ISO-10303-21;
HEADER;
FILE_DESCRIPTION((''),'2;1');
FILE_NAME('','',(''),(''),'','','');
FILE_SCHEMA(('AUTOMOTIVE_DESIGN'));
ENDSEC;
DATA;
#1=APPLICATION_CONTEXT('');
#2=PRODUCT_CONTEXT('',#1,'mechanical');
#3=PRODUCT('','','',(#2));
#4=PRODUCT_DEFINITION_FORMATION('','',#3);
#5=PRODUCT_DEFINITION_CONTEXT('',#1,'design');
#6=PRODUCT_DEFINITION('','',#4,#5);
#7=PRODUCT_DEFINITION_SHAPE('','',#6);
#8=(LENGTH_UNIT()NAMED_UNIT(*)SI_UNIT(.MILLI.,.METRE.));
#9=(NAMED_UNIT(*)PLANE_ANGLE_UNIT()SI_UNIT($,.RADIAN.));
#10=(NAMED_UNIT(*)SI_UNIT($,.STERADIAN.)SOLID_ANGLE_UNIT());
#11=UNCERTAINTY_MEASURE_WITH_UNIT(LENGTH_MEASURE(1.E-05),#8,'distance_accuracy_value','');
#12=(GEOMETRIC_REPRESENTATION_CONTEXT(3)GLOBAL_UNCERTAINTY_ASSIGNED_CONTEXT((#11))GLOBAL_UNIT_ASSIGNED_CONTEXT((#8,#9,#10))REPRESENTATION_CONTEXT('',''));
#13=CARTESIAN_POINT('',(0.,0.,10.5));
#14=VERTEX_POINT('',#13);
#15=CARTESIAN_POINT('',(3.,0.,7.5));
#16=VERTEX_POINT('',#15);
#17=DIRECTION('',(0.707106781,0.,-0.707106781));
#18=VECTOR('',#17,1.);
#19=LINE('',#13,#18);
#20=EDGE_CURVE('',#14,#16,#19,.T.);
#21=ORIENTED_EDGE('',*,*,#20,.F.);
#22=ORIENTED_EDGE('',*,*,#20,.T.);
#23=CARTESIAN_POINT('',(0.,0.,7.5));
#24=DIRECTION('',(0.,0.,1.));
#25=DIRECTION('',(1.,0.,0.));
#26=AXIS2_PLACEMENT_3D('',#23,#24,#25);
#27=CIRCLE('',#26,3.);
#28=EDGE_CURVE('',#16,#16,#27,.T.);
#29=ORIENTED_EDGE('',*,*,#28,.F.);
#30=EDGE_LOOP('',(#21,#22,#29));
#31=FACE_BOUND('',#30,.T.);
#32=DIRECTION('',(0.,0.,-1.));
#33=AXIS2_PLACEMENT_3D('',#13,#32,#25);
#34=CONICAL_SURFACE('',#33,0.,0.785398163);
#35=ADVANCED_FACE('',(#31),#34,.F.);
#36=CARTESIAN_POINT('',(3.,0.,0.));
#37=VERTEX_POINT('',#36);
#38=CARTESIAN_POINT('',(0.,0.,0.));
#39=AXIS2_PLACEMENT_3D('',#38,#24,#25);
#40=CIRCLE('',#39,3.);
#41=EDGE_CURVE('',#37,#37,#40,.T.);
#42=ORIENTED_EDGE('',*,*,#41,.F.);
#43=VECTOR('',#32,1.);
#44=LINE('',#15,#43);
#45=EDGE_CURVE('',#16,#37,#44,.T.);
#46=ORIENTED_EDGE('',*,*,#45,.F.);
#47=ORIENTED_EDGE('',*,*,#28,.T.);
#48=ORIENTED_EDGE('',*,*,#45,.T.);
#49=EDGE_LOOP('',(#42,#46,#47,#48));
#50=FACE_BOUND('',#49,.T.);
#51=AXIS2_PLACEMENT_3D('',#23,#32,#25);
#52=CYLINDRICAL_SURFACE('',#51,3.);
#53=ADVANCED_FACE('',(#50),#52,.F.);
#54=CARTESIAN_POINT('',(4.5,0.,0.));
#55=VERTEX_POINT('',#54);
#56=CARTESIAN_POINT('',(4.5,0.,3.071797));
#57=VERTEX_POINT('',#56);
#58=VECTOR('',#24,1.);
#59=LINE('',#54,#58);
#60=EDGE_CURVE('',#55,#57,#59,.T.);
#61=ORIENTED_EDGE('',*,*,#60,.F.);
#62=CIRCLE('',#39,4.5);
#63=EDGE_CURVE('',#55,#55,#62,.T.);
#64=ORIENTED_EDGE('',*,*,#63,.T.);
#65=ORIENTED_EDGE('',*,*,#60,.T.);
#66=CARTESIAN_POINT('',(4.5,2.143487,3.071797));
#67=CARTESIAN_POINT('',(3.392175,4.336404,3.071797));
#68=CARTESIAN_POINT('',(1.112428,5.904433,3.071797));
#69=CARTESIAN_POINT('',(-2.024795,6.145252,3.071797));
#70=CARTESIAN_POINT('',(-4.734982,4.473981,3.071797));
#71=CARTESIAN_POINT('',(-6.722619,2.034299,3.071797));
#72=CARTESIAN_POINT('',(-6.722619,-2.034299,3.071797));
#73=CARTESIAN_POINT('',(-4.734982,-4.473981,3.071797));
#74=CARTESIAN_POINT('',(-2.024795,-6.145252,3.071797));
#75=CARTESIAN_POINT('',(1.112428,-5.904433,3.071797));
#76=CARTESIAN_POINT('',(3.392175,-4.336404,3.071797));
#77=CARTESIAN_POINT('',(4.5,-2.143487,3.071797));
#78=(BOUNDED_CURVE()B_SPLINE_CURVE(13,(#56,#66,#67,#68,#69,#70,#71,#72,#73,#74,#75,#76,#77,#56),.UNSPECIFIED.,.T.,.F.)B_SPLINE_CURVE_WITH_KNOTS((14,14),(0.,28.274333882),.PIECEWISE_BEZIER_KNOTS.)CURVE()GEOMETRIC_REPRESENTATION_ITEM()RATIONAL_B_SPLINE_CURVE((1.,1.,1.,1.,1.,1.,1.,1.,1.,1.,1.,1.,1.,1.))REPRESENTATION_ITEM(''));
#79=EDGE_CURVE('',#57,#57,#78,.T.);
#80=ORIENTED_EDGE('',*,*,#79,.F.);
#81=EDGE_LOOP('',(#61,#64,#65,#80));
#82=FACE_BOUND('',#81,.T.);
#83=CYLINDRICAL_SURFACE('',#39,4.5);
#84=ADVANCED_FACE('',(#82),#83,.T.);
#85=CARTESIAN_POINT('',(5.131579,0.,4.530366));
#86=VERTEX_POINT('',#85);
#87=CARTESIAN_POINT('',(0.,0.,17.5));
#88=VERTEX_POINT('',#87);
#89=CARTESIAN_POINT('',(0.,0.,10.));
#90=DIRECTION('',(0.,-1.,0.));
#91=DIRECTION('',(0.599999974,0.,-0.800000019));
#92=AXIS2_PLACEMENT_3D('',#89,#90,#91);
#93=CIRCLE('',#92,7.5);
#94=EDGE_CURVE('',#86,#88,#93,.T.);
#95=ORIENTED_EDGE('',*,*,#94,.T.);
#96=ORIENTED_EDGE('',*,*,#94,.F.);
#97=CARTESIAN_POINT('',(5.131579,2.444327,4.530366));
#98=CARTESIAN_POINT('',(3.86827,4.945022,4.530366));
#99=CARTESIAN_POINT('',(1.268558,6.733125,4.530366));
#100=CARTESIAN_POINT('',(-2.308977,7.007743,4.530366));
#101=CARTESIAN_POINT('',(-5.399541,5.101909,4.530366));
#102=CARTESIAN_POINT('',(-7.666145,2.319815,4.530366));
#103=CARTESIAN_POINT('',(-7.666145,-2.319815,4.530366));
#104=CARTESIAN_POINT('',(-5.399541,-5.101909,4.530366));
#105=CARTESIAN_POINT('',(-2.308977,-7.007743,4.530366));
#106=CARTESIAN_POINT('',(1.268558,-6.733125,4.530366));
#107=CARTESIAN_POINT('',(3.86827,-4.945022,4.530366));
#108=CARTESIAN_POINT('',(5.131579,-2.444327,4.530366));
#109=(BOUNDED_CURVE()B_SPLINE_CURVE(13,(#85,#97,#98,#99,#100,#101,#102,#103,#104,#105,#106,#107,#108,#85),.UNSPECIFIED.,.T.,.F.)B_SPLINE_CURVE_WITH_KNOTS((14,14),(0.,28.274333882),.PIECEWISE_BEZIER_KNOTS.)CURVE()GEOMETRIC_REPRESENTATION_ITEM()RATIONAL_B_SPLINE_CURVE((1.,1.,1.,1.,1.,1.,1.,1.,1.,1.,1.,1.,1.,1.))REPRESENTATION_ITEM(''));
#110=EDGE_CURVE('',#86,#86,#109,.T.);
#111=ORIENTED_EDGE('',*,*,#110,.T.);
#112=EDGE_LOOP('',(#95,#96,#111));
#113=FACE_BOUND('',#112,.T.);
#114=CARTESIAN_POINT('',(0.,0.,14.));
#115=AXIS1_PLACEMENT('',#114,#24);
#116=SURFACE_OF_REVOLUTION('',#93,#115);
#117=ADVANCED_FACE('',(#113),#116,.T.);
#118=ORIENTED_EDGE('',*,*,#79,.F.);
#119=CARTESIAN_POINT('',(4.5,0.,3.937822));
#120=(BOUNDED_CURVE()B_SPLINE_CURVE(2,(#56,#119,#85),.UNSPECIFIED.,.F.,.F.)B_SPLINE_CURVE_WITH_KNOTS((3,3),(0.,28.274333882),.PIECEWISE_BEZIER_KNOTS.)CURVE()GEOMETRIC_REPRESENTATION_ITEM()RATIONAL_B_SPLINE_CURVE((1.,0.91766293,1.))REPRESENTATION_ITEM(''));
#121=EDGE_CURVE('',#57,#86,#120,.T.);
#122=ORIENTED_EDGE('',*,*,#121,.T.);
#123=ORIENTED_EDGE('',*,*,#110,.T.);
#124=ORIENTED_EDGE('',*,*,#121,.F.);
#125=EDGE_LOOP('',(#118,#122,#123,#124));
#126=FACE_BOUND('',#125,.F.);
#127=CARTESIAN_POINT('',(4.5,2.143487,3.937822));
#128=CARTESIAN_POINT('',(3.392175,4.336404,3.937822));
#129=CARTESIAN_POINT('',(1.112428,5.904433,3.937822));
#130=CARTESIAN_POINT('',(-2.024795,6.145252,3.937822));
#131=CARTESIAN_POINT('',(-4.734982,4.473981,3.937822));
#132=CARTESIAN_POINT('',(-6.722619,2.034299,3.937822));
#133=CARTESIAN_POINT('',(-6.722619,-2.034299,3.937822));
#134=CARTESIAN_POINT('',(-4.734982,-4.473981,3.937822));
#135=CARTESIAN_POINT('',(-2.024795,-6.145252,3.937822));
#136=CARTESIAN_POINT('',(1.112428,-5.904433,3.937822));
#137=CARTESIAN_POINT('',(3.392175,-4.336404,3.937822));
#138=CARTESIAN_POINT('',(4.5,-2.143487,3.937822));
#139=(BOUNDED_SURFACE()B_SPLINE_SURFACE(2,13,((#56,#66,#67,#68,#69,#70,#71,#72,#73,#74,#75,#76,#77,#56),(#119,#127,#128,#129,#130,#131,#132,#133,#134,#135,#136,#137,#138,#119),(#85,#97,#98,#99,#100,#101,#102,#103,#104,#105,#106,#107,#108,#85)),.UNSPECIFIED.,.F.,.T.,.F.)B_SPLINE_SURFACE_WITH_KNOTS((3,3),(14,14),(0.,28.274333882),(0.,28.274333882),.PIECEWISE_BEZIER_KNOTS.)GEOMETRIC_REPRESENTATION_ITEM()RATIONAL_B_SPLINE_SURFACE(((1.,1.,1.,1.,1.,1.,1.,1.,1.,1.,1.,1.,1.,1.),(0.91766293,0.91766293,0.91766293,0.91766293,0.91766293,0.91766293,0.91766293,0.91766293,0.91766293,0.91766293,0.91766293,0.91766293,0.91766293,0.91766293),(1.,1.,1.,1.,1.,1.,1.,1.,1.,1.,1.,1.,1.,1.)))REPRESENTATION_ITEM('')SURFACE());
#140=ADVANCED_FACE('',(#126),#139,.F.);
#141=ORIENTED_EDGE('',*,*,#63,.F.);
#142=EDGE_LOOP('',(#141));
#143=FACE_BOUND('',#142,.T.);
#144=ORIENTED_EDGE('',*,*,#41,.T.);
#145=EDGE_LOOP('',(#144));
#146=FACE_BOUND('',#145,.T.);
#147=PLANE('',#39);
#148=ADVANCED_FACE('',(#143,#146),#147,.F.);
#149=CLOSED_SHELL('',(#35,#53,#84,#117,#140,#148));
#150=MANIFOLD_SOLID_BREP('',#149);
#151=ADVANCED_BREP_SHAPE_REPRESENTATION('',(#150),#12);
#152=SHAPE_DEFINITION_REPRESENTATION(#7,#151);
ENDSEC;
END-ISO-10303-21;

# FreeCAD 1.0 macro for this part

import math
import FreeCAD as App
import Part
import Sketcher
from FreeCAD import Vector
Q = App.Units.Quantity


def edges_at(feature, points):
    """Names of the edges that pass closest to the given points."""
    edges = feature.Shape.Edges
    near = lambda p: min(range(len(edges)), key=lambda i: edges[i].distToShape(Part.Vertex(*p))[0])
    return sorted({f"Edge{near(p) + 1}" for p in points})

doc = App.newDocument("Part")
body = doc.addObject("PartDesign::Body", "Body")

# Sketch on XZ plane
sketch1 = doc.addObject("Sketcher::SketchObject", "Sketch")
body.addObject(sketch1)
sketch1.AttachmentSupport = (doc.XZ_Plane, [""])
sketch1.MapMode = "FlatFace"
sketch1.addGeometry(Part.LineSegment(Vector(3, 7.5, 0), Vector(3, 0, 0)), False)
sketch1.addGeometry(Part.LineSegment(Vector(3, 0, 0), Vector(4.5, 0, 0)), False)
sketch1.addGeometry(Part.LineSegment(Vector(4.5, 0, 0), Vector(4.5, 4, 0)), False)
sketch1.addGeometry(Part.ArcOfCircle(Part.Circle(Vector(0, 10, 0), Vector(0, 0, 1), 7.5), math.radians(-53), math.radians(90)), False)
sketch1.addGeometry(Part.LineSegment(Vector(0, 17.5, 0), Vector(0, 10.5, 0)), False)
sketch1.addGeometry(Part.LineSegment(Vector(0, 10.5, 0), Vector(3, 7.5, 0)), False)
sketch1.addConstraint(Sketcher.Constraint("Coincident", 0, 2, 1, 1))
sketch1.addConstraint(Sketcher.Constraint("Coincident", 1, 2, 2, 1))
sketch1.addConstraint(Sketcher.Constraint("Coincident", 2, 2, 3, 1))
sketch1.addConstraint(Sketcher.Constraint("Coincident", 3, 2, 4, 1))
sketch1.addConstraint(Sketcher.Constraint("Coincident", 4, 2, 5, 1))
sketch1.addConstraint(Sketcher.Constraint("Coincident", 5, 2, 0, 1))
sketch1.addConstraint(Sketcher.Constraint("Vertical", 0))
sketch1.addConstraint(Sketcher.Constraint("Horizontal", 1))
sketch1.addConstraint(Sketcher.Constraint("Vertical", 2))
sketch1.addConstraint(Sketcher.Constraint("Vertical", 4))
sketch1.addConstraint(Sketcher.Constraint("PointOnObject", 3, 3, -2))
sketch1.addConstraint(Sketcher.Constraint("PointOnObject", 0, 2, -1))
sketch1.addConstraint(Sketcher.Constraint("PointOnObject", 3, 2, -2))
sketch1.addConstraint(Sketcher.Constraint("Radius", 3, 7.5))
sketch1.addConstraint(Sketcher.Constraint("DistanceY", 2, 1, 2, 2, 4.0))
sketch1.addConstraint(Sketcher.Constraint("DistanceY", 4, 2, 4, 1, 7.0))
sketch1.addConstraint(Sketcher.Constraint("Angle", 5, Q("-45 deg")))
sketch1.addConstraint(Sketcher.Constraint("DistanceX", 1, 1, 1, 2, 1.5))
sketch1.addConstraint(Sketcher.Constraint("DistanceY", 0, 2, 0, 1, 7.5))
revolution = doc.addObject("PartDesign::Revolution", "Revolution")
body.addObject(revolution)
revolution.Profile = sketch1
revolution.ReferenceAxis = (sketch1, ["V_Axis"])
revolution.Angle = 360
doc.recompute()

fillet = doc.addObject("PartDesign::Fillet", "Fillet")
body.addObject(fillet)
fillet.Base = (revolution, edges_at(revolution, [(-4.5, 0, 4)]))
fillet.Radius = 2

doc.recompute()
